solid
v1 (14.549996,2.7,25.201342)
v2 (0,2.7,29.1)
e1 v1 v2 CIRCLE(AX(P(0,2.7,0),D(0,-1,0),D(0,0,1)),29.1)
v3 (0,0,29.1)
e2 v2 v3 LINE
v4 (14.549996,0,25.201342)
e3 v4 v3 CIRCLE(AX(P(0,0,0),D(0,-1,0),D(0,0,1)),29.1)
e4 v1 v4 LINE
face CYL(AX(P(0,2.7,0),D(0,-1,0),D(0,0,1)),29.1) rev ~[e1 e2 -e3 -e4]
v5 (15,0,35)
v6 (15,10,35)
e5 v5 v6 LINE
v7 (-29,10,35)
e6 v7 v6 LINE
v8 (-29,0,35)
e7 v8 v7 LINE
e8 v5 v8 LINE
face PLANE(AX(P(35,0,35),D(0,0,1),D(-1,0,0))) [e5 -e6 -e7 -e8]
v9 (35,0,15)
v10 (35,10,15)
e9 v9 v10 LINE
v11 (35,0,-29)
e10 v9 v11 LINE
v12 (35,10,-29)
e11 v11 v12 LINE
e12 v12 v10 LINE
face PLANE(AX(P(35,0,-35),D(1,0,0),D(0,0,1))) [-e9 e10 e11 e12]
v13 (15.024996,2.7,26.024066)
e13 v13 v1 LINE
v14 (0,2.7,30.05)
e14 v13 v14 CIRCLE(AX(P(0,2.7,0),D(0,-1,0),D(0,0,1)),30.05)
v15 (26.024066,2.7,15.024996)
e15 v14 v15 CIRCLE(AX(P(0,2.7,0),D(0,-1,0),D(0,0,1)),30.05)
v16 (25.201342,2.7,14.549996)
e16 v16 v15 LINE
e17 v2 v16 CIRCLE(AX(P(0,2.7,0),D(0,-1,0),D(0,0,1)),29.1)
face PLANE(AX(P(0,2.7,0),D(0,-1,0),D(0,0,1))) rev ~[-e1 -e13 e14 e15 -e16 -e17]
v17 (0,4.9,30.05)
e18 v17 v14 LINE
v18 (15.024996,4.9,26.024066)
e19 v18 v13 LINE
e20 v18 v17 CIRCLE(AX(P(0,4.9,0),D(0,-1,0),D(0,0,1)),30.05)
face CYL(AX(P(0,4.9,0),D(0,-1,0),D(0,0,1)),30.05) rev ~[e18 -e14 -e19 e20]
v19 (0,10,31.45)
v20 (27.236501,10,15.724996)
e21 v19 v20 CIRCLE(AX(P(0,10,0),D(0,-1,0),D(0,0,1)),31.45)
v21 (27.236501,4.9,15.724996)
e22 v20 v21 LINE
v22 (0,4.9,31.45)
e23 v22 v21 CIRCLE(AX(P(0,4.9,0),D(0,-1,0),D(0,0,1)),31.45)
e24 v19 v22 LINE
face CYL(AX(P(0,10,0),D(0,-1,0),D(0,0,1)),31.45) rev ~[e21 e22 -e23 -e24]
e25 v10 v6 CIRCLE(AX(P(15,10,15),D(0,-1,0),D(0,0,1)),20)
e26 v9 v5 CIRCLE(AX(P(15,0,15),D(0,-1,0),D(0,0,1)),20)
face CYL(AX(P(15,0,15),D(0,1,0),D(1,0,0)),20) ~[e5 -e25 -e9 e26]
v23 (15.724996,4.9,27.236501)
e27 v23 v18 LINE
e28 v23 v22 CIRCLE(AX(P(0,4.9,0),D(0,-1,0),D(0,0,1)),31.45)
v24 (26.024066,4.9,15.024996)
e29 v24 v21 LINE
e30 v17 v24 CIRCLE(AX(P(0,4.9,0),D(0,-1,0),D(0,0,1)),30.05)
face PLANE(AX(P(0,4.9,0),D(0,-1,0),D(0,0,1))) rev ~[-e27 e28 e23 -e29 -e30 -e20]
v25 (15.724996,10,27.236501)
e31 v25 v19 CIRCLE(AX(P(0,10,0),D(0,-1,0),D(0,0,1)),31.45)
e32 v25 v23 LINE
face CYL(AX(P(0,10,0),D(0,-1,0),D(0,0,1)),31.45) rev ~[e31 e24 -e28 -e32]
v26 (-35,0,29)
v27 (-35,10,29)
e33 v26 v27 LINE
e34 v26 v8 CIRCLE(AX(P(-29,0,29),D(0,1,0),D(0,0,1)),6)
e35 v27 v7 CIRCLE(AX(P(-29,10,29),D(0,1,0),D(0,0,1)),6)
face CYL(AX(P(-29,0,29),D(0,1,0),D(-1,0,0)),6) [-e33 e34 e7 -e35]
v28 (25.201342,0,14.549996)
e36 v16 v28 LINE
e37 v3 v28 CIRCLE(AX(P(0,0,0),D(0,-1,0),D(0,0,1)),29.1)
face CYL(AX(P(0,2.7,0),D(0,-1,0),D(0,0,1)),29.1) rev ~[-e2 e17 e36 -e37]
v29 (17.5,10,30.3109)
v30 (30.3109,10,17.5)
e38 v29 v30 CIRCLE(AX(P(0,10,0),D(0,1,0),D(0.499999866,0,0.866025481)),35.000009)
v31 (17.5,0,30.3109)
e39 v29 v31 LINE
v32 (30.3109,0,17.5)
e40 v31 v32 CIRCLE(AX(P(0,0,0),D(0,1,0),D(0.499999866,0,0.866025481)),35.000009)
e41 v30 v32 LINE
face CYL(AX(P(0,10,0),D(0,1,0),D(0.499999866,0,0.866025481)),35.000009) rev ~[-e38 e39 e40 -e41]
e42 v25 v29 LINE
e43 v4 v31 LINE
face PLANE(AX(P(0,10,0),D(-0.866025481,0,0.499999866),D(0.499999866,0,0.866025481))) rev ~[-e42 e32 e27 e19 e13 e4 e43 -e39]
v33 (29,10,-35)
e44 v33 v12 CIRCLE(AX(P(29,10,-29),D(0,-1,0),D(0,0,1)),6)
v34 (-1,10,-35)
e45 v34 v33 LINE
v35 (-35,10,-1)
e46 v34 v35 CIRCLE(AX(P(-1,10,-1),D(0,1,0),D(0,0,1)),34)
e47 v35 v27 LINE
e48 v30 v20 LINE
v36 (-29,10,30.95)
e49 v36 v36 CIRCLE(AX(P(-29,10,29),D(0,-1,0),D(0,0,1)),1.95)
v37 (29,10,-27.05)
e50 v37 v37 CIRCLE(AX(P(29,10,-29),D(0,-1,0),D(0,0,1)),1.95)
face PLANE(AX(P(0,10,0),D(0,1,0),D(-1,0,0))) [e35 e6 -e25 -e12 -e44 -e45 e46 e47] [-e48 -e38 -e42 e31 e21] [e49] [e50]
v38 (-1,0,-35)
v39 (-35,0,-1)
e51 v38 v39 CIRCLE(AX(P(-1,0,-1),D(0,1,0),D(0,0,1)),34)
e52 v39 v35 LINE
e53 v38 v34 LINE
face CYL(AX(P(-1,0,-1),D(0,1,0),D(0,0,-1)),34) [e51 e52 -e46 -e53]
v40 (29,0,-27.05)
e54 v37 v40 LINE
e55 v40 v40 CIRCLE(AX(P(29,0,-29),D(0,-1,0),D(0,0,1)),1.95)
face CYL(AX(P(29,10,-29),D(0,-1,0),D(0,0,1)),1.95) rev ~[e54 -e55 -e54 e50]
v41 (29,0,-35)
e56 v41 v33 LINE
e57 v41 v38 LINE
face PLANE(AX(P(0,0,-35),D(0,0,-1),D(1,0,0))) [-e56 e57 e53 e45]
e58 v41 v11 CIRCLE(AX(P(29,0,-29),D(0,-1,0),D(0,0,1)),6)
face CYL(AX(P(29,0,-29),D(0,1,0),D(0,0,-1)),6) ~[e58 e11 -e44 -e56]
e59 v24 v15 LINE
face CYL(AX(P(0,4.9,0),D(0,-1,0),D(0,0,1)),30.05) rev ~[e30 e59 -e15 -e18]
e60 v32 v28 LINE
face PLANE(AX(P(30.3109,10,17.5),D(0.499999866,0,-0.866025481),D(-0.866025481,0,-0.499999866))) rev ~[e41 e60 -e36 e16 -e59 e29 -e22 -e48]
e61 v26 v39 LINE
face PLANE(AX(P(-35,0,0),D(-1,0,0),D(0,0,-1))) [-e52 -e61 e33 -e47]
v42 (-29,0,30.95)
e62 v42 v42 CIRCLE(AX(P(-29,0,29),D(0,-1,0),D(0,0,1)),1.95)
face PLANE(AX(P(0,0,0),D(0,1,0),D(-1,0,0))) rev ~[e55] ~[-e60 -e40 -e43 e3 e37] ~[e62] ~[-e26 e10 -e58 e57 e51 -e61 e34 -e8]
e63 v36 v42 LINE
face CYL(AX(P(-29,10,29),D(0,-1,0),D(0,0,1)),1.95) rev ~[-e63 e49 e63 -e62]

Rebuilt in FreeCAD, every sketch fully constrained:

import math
import FreeCAD as App
import Part
import Sketcher
Q = App.Units.Quantity


def edges_at(feature, points):
    """Names of the edges that pass closest to the given points."""
    edges = feature.Shape.Edges
    near = lambda p: min(range(len(edges)), key=lambda i: edges[i].distToShape(Part.Vertex(*p))[0])
    return sorted({f"Edge{near(p) + 1}" for p in points})


def add_polygon(sketch, points):
    """Adds a closed chain of lines whose ends are joined by coincident constraints."""
    first, n = sketch.GeometryCount, len(points)
    for a, b in zip(points, points[1:] + points[:1]):
        sketch.addGeometry(Part.LineSegment(App.Vector(*a, 0), App.Vector(*b, 0)), False)
    for i in range(n):
        sketch.addConstraint(Sketcher.Constraint("Coincident", first + i, 2, first + (i + 1) % n, 1))

doc = App.newDocument("Part")
body = doc.addObject("PartDesign::Body", "Body")

# Sketch on XZ plane
sketch1 = body.newObject("Sketcher::SketchObject", "Sketch")
sketch1.AttachmentSupport = (doc.getObject("XZ_Plane"), [""])
sketch1.MapMode = "FlatFace"
add_polygon(sketch1, [(35, -35), (-35, -35), (-35, 35), (35, 35)])  # lines 0-3
sketch1.addConstraint([
    Sketcher.Constraint("Horizontal", 0),
    Sketcher.Constraint("Vertical", 1),
    Sketcher.Constraint("Horizontal", 2),
    Sketcher.Constraint("Vertical", 3),
    Sketcher.Constraint("Symmetric", 0, 2, 2, 2, -1, 1),
    Sketcher.Constraint("Equal", 2, 1),
    Sketcher.Constraint("DistanceX", 0, 2, 0, 1, 70.0),
])
pad1 = body.newObject("PartDesign::Pad", "Pad")
pad1.Profile = sketch1
pad1.Length = 10
pad1.Reversed = True
doc.recompute()

fillet = body.newObject("PartDesign::Fillet", "Fillet")
fillet.Base = (pad1, edges_at(pad1, [(35, 5, -35), (-35, 5, 35)]))
fillet.Radius = 6
doc.recompute()

fillet2 = body.newObject("PartDesign::Fillet", "Fillet001")
fillet2.Base = (fillet, edges_at(fillet, [(-35, 5, -35)]))
fillet2.Radius = 34

# Sketch on XZ plane
sketch2 = body.newObject("Sketcher::SketchObject", "Sketch001")
sketch2.AttachmentSupport = (doc.getObject("XZ_Plane"), [""])
sketch2.MapMode = "FlatFace"
sketch2.AttachmentOffset = App.Placement(App.Vector(0, 0, -10), App.Rotation())
sketch2.addGeometry(Part.Circle(App.Vector(0, 0, 0), App.Vector(0, 0, 1), 30), False)
sketch2.addConstraint([
    Sketcher.Constraint("Coincident", 0, 3, -1, 1),
    Sketcher.Constraint("Diameter", 0, 60.1),
])
doc.recompute()
hole = body.newObject("PartDesign::Hole", "Hole")
hole.Profile = sketch2
hole.ThreadType = "None"
hole.Diameter = 60.1
hole.DepthType = "Dimension"
hole.Depth = 7.3
hole.DrillPoint = "Flat"
hole.HoleCutType = "Counterbore"
hole.HoleCutDiameter = 62.9
hole.HoleCutDepth = 5.1
hole.Reversed = True

# Sketch on XZ plane
sketch3 = body.newObject("Sketcher::SketchObject", "Sketch002")
sketch3.AttachmentSupport = (doc.getObject("XZ_Plane"), [""])
sketch3.MapMode = "FlatFace"
sketch3.AttachmentOffset = App.Placement(App.Vector(0, 0, -2.7), App.Rotation())
sketch3.addGeometry(Part.Circle(App.Vector(0, 0, 0), App.Vector(0, 0, 1), 29), False)
sketch3.addConstraint([
    Sketcher.Constraint("Coincident", 0, 3, -1, 1),
    Sketcher.Constraint("Diameter", 0, 58.2),
])
doc.recompute()
hole2 = body.newObject("PartDesign::Hole", "Hole001")
hole2.Profile = sketch3
hole2.ThreadType = "None"
hole2.Diameter = 58.2
hole2.DepthType = "ThroughAll"
hole2.Reversed = True

# Sketch on XZ plane
sketch4 = body.newObject("Sketcher::SketchObject", "Sketch003")
sketch4.AttachmentSupport = (doc.getObject("XZ_Plane"), [""])
sketch4.MapMode = "FlatFace"
sketch4.AttachmentOffset = App.Placement(App.Vector(0, 0, -10), App.Rotation())
sketch4.addGeometry([
    Part.Circle(App.Vector(-29, 29, 0), App.Vector(0, 0, 1), 1.9),
    Part.Circle(App.Vector(29, -29, 0), App.Vector(0, 0, 1), 1.9),
], False)
sketch4.addConstraint([
    Sketcher.Constraint("Equal", 0, 1),
    Sketcher.Constraint("Symmetric", 0, 3, 1, 3, -1, 1),
    Sketcher.Constraint("Diameter", 0, 3.9),
    Sketcher.Constraint("DistanceX", 0, 3, -1, 1, 29.0),
    Sketcher.Constraint("DistanceY", -1, 1, 0, 3, 29.0),
])
doc.recompute()
hole3 = body.newObject("PartDesign::Hole", "Hole002")
hole3.Profile = sketch4
hole3.ThreadType = "None"
hole3.Diameter = 3.9
hole3.DepthType = "ThroughAll"
hole3.Reversed = True

# Sketch on XZ plane
sketch5 = body.newObject("Sketcher::SketchObject", "Sketch004")
sketch5.AttachmentSupport = (doc.getObject("XZ_Plane"), [""])
sketch5.MapMode = "FlatFace"
sketch5.AttachmentOffset = App.Placement(App.Vector(0, 0, -10), App.Rotation())
sketch5.addGeometry([
    Part.LineSegment(App.Vector(0, 0, 0), App.Vector(18, 30, 0)),
    Part.ArcOfCircle(Part.Circle(App.Vector(0, 0, 0), App.Vector(0, 0, 1), 35), math.radians(30), math.radians(60)),
    Part.LineSegment(App.Vector(30, 18, 0), App.Vector(0, 0, 0)),
], False)
sketch5.addConstraint([
    Sketcher.Constraint("Coincident", 0, 2, 1, 2),
    Sketcher.Constraint("Coincident", 1, 1, 2, 1),
    Sketcher.Constraint("Coincident", 2, 2, 0, 1),
    Sketcher.Constraint("Coincident", 1, 3, -1, 1),
    Sketcher.Constraint("Coincident", 2, 2, -1, 1),
    Sketcher.Constraint("Radius", 1, 35.0),
    Sketcher.Constraint("Angle", 0, Q("60 deg")),
    Sketcher.Constraint("Angle", 2, Q("-150 deg")),
])
pocket1 = body.newObject("PartDesign::Pocket", "Pocket")
pocket1.Profile = sketch5
pocket1.Length = 10
pocket1.Reversed = True
doc.recompute()

fillet3 = body.newObject("PartDesign::Fillet", "Fillet002")
fillet3.Base = (pocket1, edges_at(pocket1, [(35, 5, 35)]))
fillet3.Radius = 20

doc.recompute()
